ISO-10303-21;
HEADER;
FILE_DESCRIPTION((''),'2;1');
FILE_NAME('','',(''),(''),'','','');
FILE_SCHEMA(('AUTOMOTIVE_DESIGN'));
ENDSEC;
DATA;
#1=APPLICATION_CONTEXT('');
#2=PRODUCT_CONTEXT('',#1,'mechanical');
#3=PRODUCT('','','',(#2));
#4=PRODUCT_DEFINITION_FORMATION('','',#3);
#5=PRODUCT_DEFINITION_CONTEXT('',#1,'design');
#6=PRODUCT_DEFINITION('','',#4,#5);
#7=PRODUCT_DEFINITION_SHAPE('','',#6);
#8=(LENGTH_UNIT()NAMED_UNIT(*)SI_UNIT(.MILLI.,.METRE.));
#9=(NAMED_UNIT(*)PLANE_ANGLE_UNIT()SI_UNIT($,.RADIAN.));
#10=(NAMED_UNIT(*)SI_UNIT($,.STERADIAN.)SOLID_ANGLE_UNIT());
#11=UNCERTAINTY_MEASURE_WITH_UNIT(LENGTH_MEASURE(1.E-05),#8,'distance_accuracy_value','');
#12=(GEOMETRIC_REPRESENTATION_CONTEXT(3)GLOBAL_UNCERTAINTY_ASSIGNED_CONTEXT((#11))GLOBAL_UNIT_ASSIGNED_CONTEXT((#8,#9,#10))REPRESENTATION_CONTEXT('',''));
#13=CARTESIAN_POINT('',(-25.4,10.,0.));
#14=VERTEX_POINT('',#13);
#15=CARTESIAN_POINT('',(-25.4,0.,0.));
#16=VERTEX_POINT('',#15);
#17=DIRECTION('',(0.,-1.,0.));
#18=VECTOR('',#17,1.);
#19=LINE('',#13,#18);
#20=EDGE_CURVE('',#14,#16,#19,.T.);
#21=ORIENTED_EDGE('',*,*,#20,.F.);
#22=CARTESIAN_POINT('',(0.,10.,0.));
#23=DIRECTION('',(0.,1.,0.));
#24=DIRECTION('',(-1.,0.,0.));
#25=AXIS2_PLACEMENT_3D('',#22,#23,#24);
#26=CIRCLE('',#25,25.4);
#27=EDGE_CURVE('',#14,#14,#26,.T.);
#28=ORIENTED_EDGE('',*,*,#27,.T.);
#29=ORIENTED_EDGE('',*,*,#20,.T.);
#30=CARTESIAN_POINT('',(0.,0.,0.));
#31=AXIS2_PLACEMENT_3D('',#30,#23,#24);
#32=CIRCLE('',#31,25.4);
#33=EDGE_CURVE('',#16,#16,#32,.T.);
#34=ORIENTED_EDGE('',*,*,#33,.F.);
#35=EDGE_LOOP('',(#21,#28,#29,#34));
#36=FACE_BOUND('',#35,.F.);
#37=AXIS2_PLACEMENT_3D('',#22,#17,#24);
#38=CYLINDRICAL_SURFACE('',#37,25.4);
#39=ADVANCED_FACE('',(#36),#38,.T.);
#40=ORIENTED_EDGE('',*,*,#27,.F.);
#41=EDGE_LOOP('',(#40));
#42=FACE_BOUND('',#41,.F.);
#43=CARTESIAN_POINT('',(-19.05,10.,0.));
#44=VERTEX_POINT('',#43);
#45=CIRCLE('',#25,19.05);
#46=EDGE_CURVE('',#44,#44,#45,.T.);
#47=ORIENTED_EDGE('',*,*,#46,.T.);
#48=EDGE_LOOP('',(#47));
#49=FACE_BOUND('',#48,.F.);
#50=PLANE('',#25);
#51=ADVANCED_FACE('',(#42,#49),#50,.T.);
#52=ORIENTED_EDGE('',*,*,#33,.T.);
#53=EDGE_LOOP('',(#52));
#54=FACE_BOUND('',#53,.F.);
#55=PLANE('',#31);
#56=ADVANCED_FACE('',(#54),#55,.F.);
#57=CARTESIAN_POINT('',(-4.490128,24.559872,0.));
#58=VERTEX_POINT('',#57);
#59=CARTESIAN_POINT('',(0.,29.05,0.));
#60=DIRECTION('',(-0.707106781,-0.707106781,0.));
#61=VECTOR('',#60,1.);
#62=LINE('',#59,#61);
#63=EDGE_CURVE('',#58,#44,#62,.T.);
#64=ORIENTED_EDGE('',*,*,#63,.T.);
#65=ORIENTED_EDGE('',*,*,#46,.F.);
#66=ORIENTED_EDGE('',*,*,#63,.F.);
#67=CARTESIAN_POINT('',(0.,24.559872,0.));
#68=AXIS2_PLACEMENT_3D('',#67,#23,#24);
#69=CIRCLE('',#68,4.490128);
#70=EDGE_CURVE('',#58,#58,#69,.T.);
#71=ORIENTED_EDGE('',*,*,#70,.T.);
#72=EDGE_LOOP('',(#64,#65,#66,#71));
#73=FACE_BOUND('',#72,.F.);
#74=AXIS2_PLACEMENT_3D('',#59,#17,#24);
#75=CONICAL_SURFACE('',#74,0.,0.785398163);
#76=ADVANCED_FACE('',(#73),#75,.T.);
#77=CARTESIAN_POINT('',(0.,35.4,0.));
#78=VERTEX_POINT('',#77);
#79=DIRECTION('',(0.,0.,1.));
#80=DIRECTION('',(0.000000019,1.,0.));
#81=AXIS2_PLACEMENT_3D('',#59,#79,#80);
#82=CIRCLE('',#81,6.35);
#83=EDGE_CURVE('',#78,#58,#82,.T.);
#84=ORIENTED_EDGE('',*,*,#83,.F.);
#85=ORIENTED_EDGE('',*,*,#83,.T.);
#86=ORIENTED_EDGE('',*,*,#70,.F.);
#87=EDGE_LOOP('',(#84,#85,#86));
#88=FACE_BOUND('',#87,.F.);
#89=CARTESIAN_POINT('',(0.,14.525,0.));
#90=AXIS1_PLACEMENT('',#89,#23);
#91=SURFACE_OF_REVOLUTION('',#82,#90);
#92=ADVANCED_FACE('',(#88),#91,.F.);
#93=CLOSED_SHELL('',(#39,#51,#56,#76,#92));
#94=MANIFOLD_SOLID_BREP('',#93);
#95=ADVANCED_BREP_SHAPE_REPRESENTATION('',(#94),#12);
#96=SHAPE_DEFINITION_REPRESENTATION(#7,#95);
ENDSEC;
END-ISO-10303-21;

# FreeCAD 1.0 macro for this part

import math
import FreeCAD as App
import Part
import Sketcher

V = App.Vector
Q = App.Units.Quantity

doc = App.newDocument("Part")
body = doc.addObject("PartDesign::Body", "Body")

sketch1 = body.newObject("Sketcher::SketchObject", "Sketch")
sketch1.AttachmentSupport = (doc.getObject("XY_Plane"), [""])
sketch1.MapMode = "FlatFace"
sketch1.addGeometry([
    Part.LineSegment(V(-25, 0, 0), V(0, 0, 0)),
    Part.LineSegment(V(0, 0, 0), V(0, 35, 0)),
    Part.ArcOfCircle(Part.Circle(V(0, 29, 0), V(0, 0, 1), 6), math.radians(90), math.radians(225)),
    Part.LineSegment(V(-4, 25, 0), V(-19, 10, 0)),
    Part.LineSegment(V(-19, 10, 0), V(-25, 10, 0)),
    Part.LineSegment(V(-25, 10, 0), V(-25, 0, 0)),
], False)
sketch1.addConstraint([
    Sketcher.Constraint("Coincident", 0, 2, 1, 1),
    Sketcher.Constraint("Coincident", 1, 2, 2, 1),
    Sketcher.Constraint("Coincident", 2, 2, 3, 1),
    Sketcher.Constraint("Coincident", 3, 2, 4, 1),
    Sketcher.Constraint("Coincident", 4, 2, 5, 1),
    Sketcher.Constraint("Coincident", 5, 2, 0, 1),
    Sketcher.Constraint("Horizontal", 0),
    Sketcher.Constraint("Vertical", 1),
    Sketcher.Constraint("Horizontal", 4),
    Sketcher.Constraint("Vertical", 5),
    Sketcher.Constraint("Coincident", 0, 2, -1, 1),
    Sketcher.Constraint("PointOnObject", 2, 3, -2),
    Sketcher.Constraint("DistanceX", 0, 1, 0, 2, Q("1 in")),
    Sketcher.Constraint("Radius", 2, Q("0.25 in")),
    Sketcher.Constraint("Angle", 3, Q("-135 deg")),
    Sketcher.Constraint("DistanceY", 3, 2, 1, 2, Q("1 in")),
    Sketcher.Constraint("DistanceX", 4, 2, 4, 1, Q("0.25 in")),
    Sketcher.Constraint("DistanceY", 1, 1, 1, 2, 35.4),
])
revolution = body.newObject("PartDesign::Revolution", "Revolution")
revolution.Profile = sketch1
revolution.ReferenceAxis = (sketch1, ["V_Axis"])
revolution.Angle = 360

doc.recompute()
